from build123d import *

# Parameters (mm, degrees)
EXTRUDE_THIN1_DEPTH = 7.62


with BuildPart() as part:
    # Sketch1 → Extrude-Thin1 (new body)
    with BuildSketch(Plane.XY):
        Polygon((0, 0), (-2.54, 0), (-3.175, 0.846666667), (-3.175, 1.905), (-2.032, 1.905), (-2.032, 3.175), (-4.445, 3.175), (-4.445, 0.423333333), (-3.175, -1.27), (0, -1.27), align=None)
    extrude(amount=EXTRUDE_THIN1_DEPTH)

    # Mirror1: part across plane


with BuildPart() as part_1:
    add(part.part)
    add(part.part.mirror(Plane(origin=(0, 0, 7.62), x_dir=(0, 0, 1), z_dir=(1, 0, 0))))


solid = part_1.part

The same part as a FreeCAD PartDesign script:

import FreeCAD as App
import Part
import Sketcher

V = App.Vector
Q = App.Units.Quantity

doc = App.newDocument("Part")
body = doc.addObject("PartDesign::Body", "Body")

# Sketch on XY plane
sketch1 = body.newObject("Sketcher::SketchObject", "Sketch")
sketch1.AttachmentSupport = (doc.getObject("XY_Plane"), [""])
sketch1.MapMode = "FlatFace"
sketch1.addGeometry([
    Part.LineSegment(V(0, 0, 0), V(-2.5, 0, 0)),  # 0
    Part.LineSegment(V(-2.5, 0, 0), V(-3.2, 0.8, 0)),  # 1
    Part.LineSegment(V(-3.2, 0.8, 0), V(-3.2, 1.9, 0)),  # 2
    Part.LineSegment(V(-3.2, 1.9, 0), V(-2, 1.9, 0)),  # 3
    Part.LineSegment(V(-2, 1.9, 0), V(-2, 3.2, 0)),  # 4
    Part.LineSegment(V(-2, 3.2, 0), V(-4.4, 3.2, 0)),  # 5
    Part.LineSegment(V(-4.4, 3.2, 0), V(-4.4, 0.4, 0)),  # 6
    Part.LineSegment(V(-4.4, 0.4, 0), V(-3.2, -1.3, 0)),  # 7
    Part.LineSegment(V(-3.2, -1.3, 0), V(0, -1.3, 0)),  # 8
    Part.LineSegment(V(0, -1.3, 0), V(0, 0, 0)),  # 9
], False)
sketch1.addConstraint([
    Sketcher.Constraint("Coincident", 0, 2, 1, 1),
    Sketcher.Constraint("Coincident", 1, 2, 2, 1),
    Sketcher.Constraint("Coincident", 2, 2, 3, 1),
    Sketcher.Constraint("Coincident", 3, 2, 4, 1),
    Sketcher.Constraint("Coincident", 4, 2, 5, 1),
    Sketcher.Constraint("Coincident", 5, 2, 6, 1),
    Sketcher.Constraint("Coincident", 6, 2, 7, 1),
    Sketcher.Constraint("Coincident", 7, 2, 8, 1),
    Sketcher.Constraint("Coincident", 8, 2, 9, 1),
    Sketcher.Constraint("Coincident", 9, 2, 0, 1),
    Sketcher.Constraint("Horizontal", 0),
    Sketcher.Constraint("Vertical", 2),
    Sketcher.Constraint("Horizontal", 3),
    Sketcher.Constraint("Vertical", 4),
    Sketcher.Constraint("Horizontal", 5),
    Sketcher.Constraint("Vertical", 6),
    Sketcher.Constraint("Horizontal", 8),
    Sketcher.Constraint("Vertical", 9),
    Sketcher.Constraint("Coincident", 9, 2, -1, 1),
    Sketcher.Constraint("Parallel", 1, 7),
    Sketcher.Constraint("Vertical", 2, 2, 7, 2),
    Sketcher.Constraint("Equal", 4, 9),
    Sketcher.Constraint("DistanceX", 0, 2, 0, 1, Q("0.1 in")),
    Sketcher.Constraint("DistanceY", 4, 1, 4, 2, Q("0.05 in")),
    Sketcher.Constraint("DistanceX", 3, 1, 3, 2, Q("0.045 in")),
    Sketcher.Constraint("DistanceX", 5, 2, 5, 1, Q("0.095 in")),
    Sketcher.Constraint("DistanceX", 8, 1, 8, 2, Q("0.125 in")),
    Sketcher.Constraint("DistanceY", -1, 1, 2, 2, Q("0.075 in")),
    Sketcher.Constraint("DistanceY", 2, 1, 2, 2, Q("1.058333 mm")),
])
pad1 = body.newObject("PartDesign::Pad", "Pad")
pad1.Profile = sketch1
pad1.Length = Q("0.3 in")
body2 = doc.addObject("PartDesign::Body", "Body001")
doc.recompute()

body2.BaseFeature = body
doc.recompute()

mirroring = doc.addObject("Part::Mirroring", "Mirroring")
mirroring.Source = body
mirroring.Base = V(0, 0, 7.62)
mirroring.Normal = V(1, 0, 0)
body3 = doc.addObject("PartDesign::Body", "Body002")
body3.BaseFeature = mirroring
boolean = body2.newObject("PartDesign::Boolean", "Boolean")
boolean.Type = "Fuse"
boolean.addObjects([body3])
doc.recompute()
mirroring.Visibility = False

doc.recompute()
